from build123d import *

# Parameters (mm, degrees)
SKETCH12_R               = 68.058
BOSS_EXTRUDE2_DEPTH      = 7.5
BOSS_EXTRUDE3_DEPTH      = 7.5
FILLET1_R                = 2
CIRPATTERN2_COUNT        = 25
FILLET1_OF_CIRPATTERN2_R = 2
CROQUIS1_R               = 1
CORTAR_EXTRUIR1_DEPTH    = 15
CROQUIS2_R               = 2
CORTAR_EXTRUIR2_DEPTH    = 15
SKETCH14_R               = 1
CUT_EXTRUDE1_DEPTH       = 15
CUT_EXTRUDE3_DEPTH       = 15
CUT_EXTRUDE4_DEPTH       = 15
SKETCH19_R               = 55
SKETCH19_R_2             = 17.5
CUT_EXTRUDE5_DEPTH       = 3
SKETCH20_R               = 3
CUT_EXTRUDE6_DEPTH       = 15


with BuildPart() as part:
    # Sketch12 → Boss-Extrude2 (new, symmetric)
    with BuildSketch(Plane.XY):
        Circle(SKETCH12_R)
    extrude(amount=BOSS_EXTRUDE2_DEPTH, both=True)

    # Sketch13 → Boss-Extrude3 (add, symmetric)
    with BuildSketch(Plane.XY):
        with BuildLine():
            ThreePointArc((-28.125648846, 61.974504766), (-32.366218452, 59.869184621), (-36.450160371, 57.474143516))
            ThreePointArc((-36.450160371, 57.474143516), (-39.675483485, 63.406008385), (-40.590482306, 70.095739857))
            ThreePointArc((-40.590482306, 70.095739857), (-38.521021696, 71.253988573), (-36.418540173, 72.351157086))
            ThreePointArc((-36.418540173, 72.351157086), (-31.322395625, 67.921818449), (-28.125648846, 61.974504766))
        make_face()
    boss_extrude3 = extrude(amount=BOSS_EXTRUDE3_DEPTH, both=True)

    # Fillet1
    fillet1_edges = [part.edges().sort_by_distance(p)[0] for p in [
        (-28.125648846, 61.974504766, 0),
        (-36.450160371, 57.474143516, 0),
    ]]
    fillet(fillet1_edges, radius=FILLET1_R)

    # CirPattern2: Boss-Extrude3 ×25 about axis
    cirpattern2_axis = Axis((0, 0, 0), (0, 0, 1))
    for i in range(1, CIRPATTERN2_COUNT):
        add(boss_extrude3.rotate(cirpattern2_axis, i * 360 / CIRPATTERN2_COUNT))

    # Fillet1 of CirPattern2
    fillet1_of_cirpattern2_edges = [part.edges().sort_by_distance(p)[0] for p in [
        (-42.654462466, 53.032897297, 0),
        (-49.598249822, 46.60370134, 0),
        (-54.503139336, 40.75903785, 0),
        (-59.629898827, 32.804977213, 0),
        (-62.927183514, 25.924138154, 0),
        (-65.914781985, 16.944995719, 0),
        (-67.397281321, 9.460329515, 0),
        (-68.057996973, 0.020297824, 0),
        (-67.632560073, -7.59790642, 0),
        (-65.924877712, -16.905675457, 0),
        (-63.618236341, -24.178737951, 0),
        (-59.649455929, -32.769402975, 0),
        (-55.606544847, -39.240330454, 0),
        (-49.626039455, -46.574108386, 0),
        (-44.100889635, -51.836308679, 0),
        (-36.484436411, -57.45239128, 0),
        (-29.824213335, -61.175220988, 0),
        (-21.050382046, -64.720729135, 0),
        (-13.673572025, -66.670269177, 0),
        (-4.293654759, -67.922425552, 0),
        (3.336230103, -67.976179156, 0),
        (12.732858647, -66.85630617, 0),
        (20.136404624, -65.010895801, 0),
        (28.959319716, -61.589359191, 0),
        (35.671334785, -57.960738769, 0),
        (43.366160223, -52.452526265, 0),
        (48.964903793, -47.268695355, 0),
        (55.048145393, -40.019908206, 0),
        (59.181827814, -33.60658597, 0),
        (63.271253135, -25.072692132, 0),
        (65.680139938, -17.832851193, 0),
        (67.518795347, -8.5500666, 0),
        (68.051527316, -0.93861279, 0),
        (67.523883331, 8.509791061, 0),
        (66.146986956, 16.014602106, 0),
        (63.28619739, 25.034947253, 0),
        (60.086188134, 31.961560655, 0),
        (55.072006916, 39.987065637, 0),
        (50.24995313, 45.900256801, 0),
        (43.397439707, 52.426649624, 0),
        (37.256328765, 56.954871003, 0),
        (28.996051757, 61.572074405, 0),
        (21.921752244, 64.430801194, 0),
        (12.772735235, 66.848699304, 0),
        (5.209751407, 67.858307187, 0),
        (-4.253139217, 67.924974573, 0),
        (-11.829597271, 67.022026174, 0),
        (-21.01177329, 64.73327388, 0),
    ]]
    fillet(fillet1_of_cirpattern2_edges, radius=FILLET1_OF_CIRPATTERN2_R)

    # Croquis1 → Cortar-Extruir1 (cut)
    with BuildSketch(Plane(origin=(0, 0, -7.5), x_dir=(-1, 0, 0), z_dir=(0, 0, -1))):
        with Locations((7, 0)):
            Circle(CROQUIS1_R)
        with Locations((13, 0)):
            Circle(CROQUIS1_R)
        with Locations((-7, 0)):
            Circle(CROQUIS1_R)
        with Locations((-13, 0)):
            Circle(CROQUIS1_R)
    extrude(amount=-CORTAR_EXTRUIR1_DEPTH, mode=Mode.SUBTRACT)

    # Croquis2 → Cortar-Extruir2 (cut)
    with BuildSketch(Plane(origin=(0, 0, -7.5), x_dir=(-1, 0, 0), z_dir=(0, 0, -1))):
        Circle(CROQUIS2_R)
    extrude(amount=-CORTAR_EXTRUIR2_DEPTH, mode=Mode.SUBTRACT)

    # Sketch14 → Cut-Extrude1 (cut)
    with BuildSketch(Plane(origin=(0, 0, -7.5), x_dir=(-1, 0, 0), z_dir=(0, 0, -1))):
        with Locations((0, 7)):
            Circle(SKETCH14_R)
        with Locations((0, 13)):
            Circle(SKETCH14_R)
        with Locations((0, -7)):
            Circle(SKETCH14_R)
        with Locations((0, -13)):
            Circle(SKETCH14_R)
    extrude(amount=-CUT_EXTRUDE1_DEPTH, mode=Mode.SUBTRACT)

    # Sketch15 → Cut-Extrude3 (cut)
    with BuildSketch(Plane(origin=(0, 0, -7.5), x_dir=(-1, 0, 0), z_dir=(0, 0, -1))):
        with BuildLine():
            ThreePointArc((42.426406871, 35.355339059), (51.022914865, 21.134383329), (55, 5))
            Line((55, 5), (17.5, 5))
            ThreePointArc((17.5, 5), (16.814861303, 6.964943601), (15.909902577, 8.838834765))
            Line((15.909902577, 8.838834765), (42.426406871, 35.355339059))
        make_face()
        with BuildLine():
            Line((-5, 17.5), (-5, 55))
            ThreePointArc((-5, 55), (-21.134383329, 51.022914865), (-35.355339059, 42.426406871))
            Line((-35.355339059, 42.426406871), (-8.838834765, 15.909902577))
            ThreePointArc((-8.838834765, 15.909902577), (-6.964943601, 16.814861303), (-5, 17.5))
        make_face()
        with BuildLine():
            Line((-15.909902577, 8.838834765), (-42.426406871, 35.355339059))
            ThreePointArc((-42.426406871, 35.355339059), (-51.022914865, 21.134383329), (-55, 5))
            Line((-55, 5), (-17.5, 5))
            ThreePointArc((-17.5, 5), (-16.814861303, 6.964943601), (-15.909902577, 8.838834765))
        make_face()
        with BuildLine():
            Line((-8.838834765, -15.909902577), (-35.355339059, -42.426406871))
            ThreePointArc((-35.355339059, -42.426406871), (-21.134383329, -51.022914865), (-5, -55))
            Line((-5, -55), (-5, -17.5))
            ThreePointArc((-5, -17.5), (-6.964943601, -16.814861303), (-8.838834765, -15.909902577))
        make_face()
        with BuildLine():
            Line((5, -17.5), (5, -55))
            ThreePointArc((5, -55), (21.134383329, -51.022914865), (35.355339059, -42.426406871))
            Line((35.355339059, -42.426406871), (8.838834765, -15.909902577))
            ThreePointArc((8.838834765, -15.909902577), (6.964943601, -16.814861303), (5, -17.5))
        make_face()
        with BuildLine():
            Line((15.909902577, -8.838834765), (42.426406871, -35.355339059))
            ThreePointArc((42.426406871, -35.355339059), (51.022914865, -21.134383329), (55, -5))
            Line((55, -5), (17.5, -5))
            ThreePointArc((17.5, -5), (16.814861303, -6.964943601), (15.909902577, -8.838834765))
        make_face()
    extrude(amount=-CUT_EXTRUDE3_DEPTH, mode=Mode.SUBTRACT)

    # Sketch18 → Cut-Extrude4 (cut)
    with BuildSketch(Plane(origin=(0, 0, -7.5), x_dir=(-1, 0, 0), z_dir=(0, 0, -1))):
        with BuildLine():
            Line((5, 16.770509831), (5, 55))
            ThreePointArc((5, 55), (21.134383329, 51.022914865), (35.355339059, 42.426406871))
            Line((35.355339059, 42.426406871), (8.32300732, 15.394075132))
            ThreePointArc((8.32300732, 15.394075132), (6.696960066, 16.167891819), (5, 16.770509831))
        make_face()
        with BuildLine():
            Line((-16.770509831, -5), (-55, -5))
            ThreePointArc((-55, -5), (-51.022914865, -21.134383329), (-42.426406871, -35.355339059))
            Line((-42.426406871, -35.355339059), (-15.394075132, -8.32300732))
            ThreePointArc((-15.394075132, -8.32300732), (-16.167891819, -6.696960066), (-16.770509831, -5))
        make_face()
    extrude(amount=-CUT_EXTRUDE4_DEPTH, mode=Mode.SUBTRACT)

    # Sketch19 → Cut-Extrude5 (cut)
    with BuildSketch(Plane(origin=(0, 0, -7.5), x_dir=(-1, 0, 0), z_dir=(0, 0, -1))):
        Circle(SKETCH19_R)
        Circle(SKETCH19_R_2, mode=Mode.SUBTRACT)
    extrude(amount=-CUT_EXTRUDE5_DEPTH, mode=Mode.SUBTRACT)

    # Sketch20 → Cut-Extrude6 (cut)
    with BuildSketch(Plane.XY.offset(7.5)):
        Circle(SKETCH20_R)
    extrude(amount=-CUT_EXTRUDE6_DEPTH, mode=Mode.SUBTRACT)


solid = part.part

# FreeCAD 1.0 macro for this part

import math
import FreeCAD as App
import Part
import Sketcher
Q = App.Units.Quantity


def edges_at(feature, points):
    """Names of the edges that pass closest to the given points."""
    edges = feature.Shape.Edges
    near = lambda p: min(range(len(edges)), key=lambda i: edges[i].distToShape(Part.Vertex(*p))[0])
    return sorted({f"Edge{near(p) + 1}" for p in points})

doc = App.newDocument("Part")
body = doc.addObject("PartDesign::Body", "Body")

# Sketch on XY plane
sketch1 = doc.addObject("Sketcher::SketchObject", "Sketch")
body.addObject(sketch1)
sketch1.AttachmentSupport = (doc.XY_Plane, [""])
sketch1.MapMode = "FlatFace"
sketch1.addGeometry(Part.Circle(App.Vector(0, 0, 0), App.Vector(0, 0, 1), 68), False)
sketch1.addConstraint([
    Sketcher.Constraint("Coincident", 0, 3, -1, 1),
    Sketcher.Constraint("Diameter", 0, 136.116),
])
pad1 = doc.addObject("PartDesign::Pad", "Pad")
body.addObject(pad1)
pad1.Profile = sketch1
pad1.Length = 15
pad1.Midplane = True

# Sketch on XY plane
sketch2 = doc.addObject("Sketcher::SketchObject", "Sketch001")
body.addObject(sketch2)
sketch2.AttachmentSupport = (doc.XY_Plane, [""])
sketch2.MapMode = "FlatFace"
sketch2.addGeometry([
    Part.ArcOfCircle(Part.Circle(App.Vector(0, 0, 0), App.Vector(0, 0, 1), 68.1), math.radians(114.41), math.radians(122.38)),
    Part.ArcOfCircle(Part.Circle(App.Vector(-46, 56.2, 0), App.Vector(0, 0, 1), 18.8), math.radians(18), math.radians(59)),
    Part.ArcOfCircle(Part.Circle(App.Vector(0, 0, 0), App.Vector(0, 0, 1), 81), math.radians(116.72), math.radians(120.07)),
    Part.ArcOfCircle(Part.Circle(App.Vector(-21.9, 69.3, 0), App.Vector(0, 0, 1), 18.8), math.radians(177), math.radians(219)),
], False)
sketch2.addConstraint([
    Sketcher.Constraint("Coincident", 0, 1, 1, 1),
    Sketcher.Constraint("Coincident", 1, 2, 2, 1),
    Sketcher.Constraint("Coincident", 2, 2, 3, 1),
    Sketcher.Constraint("Coincident", 3, 2, 0, 2),
    Sketcher.Constraint("Coincident", 0, 3, -1, 1),
    Sketcher.Constraint("Coincident", 2, 3, -1, 1),
    Sketcher.Constraint("Equal", 1, 3),
    Sketcher.Constraint("Radius", 2, 80.999999),
    Sketcher.Constraint("Radius", 1, 18.75),
    Sketcher.Constraint("Radius", 0, 68.058),
    Sketcher.Constraint("DistanceY", 1, 3, 3, 2, 1.2581),
    Sketcher.Constraint("DistanceX", 1, 3, -1, 1, 45.969489),
    Sketcher.Constraint("DistanceY", -1, 1, 3, 3, 69.250252),
    Sketcher.Constraint("DistanceX", 1, 2, -1, 1, 36.41854),
])
pad2 = doc.addObject("PartDesign::Pad", "Pad001")
body.addObject(pad2)
pad2.Profile = sketch2
pad2.Length = 15
pad2.Midplane = True
doc.recompute()

fillet = doc.addObject("PartDesign::Fillet", "Fillet")
body.addObject(fillet)
fillet.Base = (pad2, edges_at(pad2, [(-28.126, 61.975, 0), (-36.45, 57.474, 0)]))
fillet.Radius = 2
doc.recompute()

polarpattern = doc.addObject("PartDesign::PolarPattern", "PolarPattern")
body.addObject(polarpattern)
polarpattern.Originals = [pad2]
polarpattern.Axis = (doc.Z_Axis, [""])
polarpattern.Angle = 360
polarpattern.Occurrences = 25
body.Tip = polarpattern
doc.recompute()

fillet2 = doc.addObject("PartDesign::Fillet", "Fillet001")
body.addObject(fillet2)
fillet2.Base = (polarpattern, edges_at(polarpattern, [
    (-42.654, 53.033, 0),
    (-49.598, 46.604, 0),
    (-54.503, 40.759, 0),
    (-59.63, 32.805, 0),
    (-62.927, 25.924, 0),
    (-65.915, 16.945, 0),
    (-67.397, 9.46, 0),
    (-68.058, 0.02, 0),
    (-67.633, -7.598, 0),
    (-65.925, -16.906, 0),
    (-63.618, -24.179, 0),
    (-59.649, -32.769, 0),
    (-55.607, -39.24, 0),
    (-49.626, -46.574, 0),
    (-44.101, -51.836, 0),
    (-36.484, -57.452, 0),
    (-29.824, -61.175, 0),
    (-21.05, -64.721, 0),
    (-13.674, -66.67, 0),
    (-4.294, -67.922, 0),
    (3.336, -67.976, 0),
    (12.733, -66.856, 0),
    (20.136, -65.011, 0),
    (28.959, -61.589, 0),
    (35.671, -57.961, 0),
    (43.366, -52.453, 0),
    (48.965, -47.269, 0),
    (55.048, -40.02, 0),
    (59.182, -33.607, 0),
    (63.271, -25.073, 0),
    (65.68, -17.833, 0),
    (67.519, -8.55, 0),
    (68.052, -0.939, 0),
    (67.524, 8.51, 0),
    (66.147, 16.015, 0),
    (63.286, 25.035, 0),
    (60.086, 31.962, 0),
    (55.072, 39.987, 0),
    (50.25, 45.9, 0),
    (43.397, 52.427, 0),
    (37.256, 56.955, 0),
    (28.996, 61.572, 0),
    (21.922, 64.431, 0),
    (12.773, 66.849, 0),
    (5.21, 67.858, 0),
    (-4.253, 67.925, 0),
    (-11.83, 67.022, 0),
    (-21.012, 64.733, 0),
]))
fillet2.Radius = 2

# Sketch on XY plane
sketch3 = doc.addObject("Sketcher::SketchObject", "Sketch002")
body.addObject(sketch3)
sketch3.AttachmentSupport = (doc.XY_Plane, [""])
sketch3.MapMode = "FlatFace"
sketch3.AttachmentOffset = App.Placement(App.Vector(0, 0, -7.5), App.Rotation())
sketch3.addGeometry([
    Part.Circle(App.Vector(-7, 0, 0), App.Vector(0, 0, 1), 1),
    Part.Circle(App.Vector(-13, 0, 0), App.Vector(0, 0, 1), 1),
    Part.Circle(App.Vector(7, 0, 0), App.Vector(0, 0, 1), 1),
    Part.Circle(App.Vector(13, 0, 0), App.Vector(0, 0, 1), 1),
], False)
sketch3.addConstraint([
    Sketcher.Constraint("Equal", 0, 1),
    Sketcher.Constraint("Equal", 1, 2),
    Sketcher.Constraint("Equal", 2, 3),
    Sketcher.Constraint("Symmetric", 0, 3, 2, 3, -1, 1),
    Sketcher.Constraint("Symmetric", 1, 3, 3, 3, -1, 1),
    Sketcher.Constraint("PointOnObject", 0, 3, -1),
    Sketcher.Constraint("PointOnObject", 1, 3, -1),
    Sketcher.Constraint("Diameter", 0, 2.0),
    Sketcher.Constraint("DistanceX", 0, 3, -1, 1, 7.0),
    Sketcher.Constraint("DistanceX", 1, 3, -1, 1, 13.0),
])
pocket1 = doc.addObject("PartDesign::Pocket", "Pocket")
body.addObject(pocket1)
pocket1.Profile = sketch3
pocket1.Length = 15
pocket1.Reversed = True

# Sketch on XY plane
sketch4 = doc.addObject("Sketcher::SketchObject", "Sketch003")
body.addObject(sketch4)
sketch4.AttachmentSupport = (doc.XY_Plane, [""])
sketch4.MapMode = "FlatFace"
sketch4.AttachmentOffset = App.Placement(App.Vector(0, 0, -7.5), App.Rotation())
sketch4.addGeometry(Part.Circle(App.Vector(0, 0, 0), App.Vector(0, 0, 1), 2), False)
sketch4.addConstraint([
    Sketcher.Constraint("Coincident", 0, 3, -1, 1),
    Sketcher.Constraint("Diameter", 0, 4.0),
])
pocket2 = doc.addObject("PartDesign::Pocket", "Pocket001")
body.addObject(pocket2)
pocket2.Profile = sketch4
pocket2.Length = 15
pocket2.Reversed = True

# Sketch on XY plane
sketch5 = doc.addObject("Sketcher::SketchObject", "Sketch004")
body.addObject(sketch5)
sketch5.AttachmentSupport = (doc.XY_Plane, [""])
sketch5.MapMode = "FlatFace"
sketch5.AttachmentOffset = App.Placement(App.Vector(0, 0, -7.5), App.Rotation())
sketch5.addGeometry([
    Part.Circle(App.Vector(0, 7, 0), App.Vector(0, 0, 1), 1),
    Part.Circle(App.Vector(0, 13, 0), App.Vector(0, 0, 1), 1),
    Part.Circle(App.Vector(0, -7, 0), App.Vector(0, 0, 1), 1),
    Part.Circle(App.Vector(0, -13, 0), App.Vector(0, 0, 1), 1),
], False)
sketch5.addConstraint([
    Sketcher.Constraint("Equal", 0, 1),
    Sketcher.Constraint("Equal", 1, 2),
    Sketcher.Constraint("Equal", 2, 3),
    Sketcher.Constraint("Symmetric", 0, 3, 2, 3, -1, 1),
    Sketcher.Constraint("Symmetric", 1, 3, 3, 3, -1, 1),
    Sketcher.Constraint("PointOnObject", 0, 3, -2),
    Sketcher.Constraint("PointOnObject", 1, 3, -2),
    Sketcher.Constraint("Diameter", 0, 2.0),
    Sketcher.Constraint("DistanceY", -1, 1, 0, 3, 7.0),
    Sketcher.Constraint("DistanceY", -1, 1, 1, 3, 13.0),
])
pocket3 = doc.addObject("PartDesign::Pocket", "Pocket002")
body.addObject(pocket3)
pocket3.Profile = sketch5
pocket3.Length = 15
pocket3.Reversed = True

# Sketch on XY plane
sketch6 = doc.addObject("Sketcher::SketchObject", "Sketch005")
body.addObject(sketch6)
sketch6.AttachmentSupport = (doc.XY_Plane, [""])
sketch6.MapMode = "FlatFace"
sketch6.AttachmentOffset = App.Placement(App.Vector(0, 0, -7.5), App.Rotation())
sketch6.addGeometry([
    Part.ArcOfCircle(Part.Circle(App.Vector(0, 0, 0), App.Vector(0, 0, 1), 55.2), math.radians(140), math.radians(175)),  # 0
    Part.LineSegment(App.Vector(-42.4, 35.4, 0), App.Vector(-15.9, 8.8, 0)),  # 1
    Part.ArcOfCircle(Part.Circle(App.Vector(0, 0, 0), App.Vector(0, 0, 1), 18.2), math.radians(150.95), math.radians(164.05)),  # 2
    Part.LineSegment(App.Vector(-17.5, 5, 0), App.Vector(-55, 5, 0)),  # 3
    Part.LineSegment(App.Vector(5, 17.5, 0), App.Vector(5, 55, 0)),  # 4
    Part.ArcOfCircle(Part.Circle(App.Vector(0, 0, 0), App.Vector(0, 0, 1), 55.2), math.radians(50), math.radians(85)),  # 5
    Part.LineSegment(App.Vector(35.4, 42.4, 0), App.Vector(8.8, 15.9, 0)),  # 6
    Part.ArcOfCircle(Part.Circle(App.Vector(0, 0, 0), App.Vector(0, 0, 1), 18.2), math.radians(60.95), math.radians(74.05)),  # 7
    Part.LineSegment(App.Vector(15.9, 8.8, 0), App.Vector(42.4, 35.4, 0)),  # 8
    Part.ArcOfCircle(Part.Circle(App.Vector(0, 0, 0), App.Vector(0, 0, 1), 55.2), math.radians(5), math.radians(40)),  # 9
    Part.LineSegment(App.Vector(55, 5, 0), App.Vector(17.5, 5, 0)),  # 10
    Part.ArcOfCircle(Part.Circle(App.Vector(0, 0, 0), App.Vector(0, 0, 1), 18.2), math.radians(15.95), math.radians(29.05)),  # 11
    Part.LineSegment(App.Vector(8.8, -15.9, 0), App.Vector(35.4, -42.4, 0)),  # 12
    Part.ArcOfCircle(Part.Circle(App.Vector(0, 0, 0), App.Vector(0, 0, 1), 55.2), math.radians(-85), math.radians(-50)),  # 13
    Part.LineSegment(App.Vector(5, -55, 0), App.Vector(5, -17.5, 0)),  # 14
    Part.ArcOfCircle(Part.Circle(App.Vector(0, 0, 0), App.Vector(0, 0, 1), 18.2), math.radians(-74.05), math.radians(-60.95)),  # 15
    Part.LineSegment(App.Vector(-5, -17.5, 0), App.Vector(-5, -55, 0)),  # 16
    Part.ArcOfCircle(Part.Circle(App.Vector(0, 0, 0), App.Vector(0, 0, 1), 55.2), math.radians(-130), math.radians(-95)),  # 17
    Part.LineSegment(App.Vector(-35.4, -42.4, 0), App.Vector(-8.8, -15.9, 0)),  # 18
    Part.ArcOfCircle(Part.Circle(App.Vector(0, 0, 0), App.Vector(0, 0, 1), 18.2), math.radians(-119.05), math.radians(-105.95)),  # 19
    Part.LineSegment(App.Vector(-15.9, -8.8, 0), App.Vector(-42.4, -35.4, 0)),  # 20
    Part.ArcOfCircle(Part.Circle(App.Vector(0, 0, 0), App.Vector(0, 0, 1), 55.2), math.radians(-175), math.radians(-140)),  # 21
    Part.LineSegment(App.Vector(-55, -5, 0), App.Vector(-17.5, -5, 0)),  # 22
    Part.ArcOfCircle(Part.Circle(App.Vector(0, 0, 0), App.Vector(0, 0, 1), 18.2), math.radians(-164.05), math.radians(-150.95)),  # 23
], False)
sketch6.addConstraint([
    Sketcher.Constraint("Coincident", 0, 1, 1, 1),
    Sketcher.Constraint("Coincident", 1, 2, 2, 1),
    Sketcher.Constraint("Coincident", 2, 2, 3, 1),
    Sketcher.Constraint("Coincident", 3, 2, 0, 2),
    Sketcher.Constraint("Coincident", 4, 2, 5, 2),
    Sketcher.Constraint("Coincident", 5, 1, 6, 1),
    Sketcher.Constraint("Coincident", 6, 2, 7, 1),
    Sketcher.Constraint("Coincident", 7, 2, 4, 1),
    Sketcher.Constraint("Coincident", 8, 2, 9, 2),
    Sketcher.Constraint("Coincident", 9, 1, 10, 1),
    Sketcher.Constraint("Coincident", 10, 2, 11, 1),
    Sketcher.Constraint("Coincident", 11, 2, 8, 1),
    Sketcher.Constraint("Coincident", 12, 2, 13, 2),
    Sketcher.Constraint("Coincident", 13, 1, 14, 1),
    Sketcher.Constraint("Coincident", 14, 2, 15, 1),
    Sketcher.Constraint("Coincident", 15, 2, 12, 1),
    Sketcher.Constraint("Coincident", 16, 2, 17, 2),
    Sketcher.Constraint("Coincident", 17, 1, 18, 1),
    Sketcher.Constraint("Coincident", 18, 2, 19, 1),
    Sketcher.Constraint("Coincident", 19, 2, 16, 1),
    Sketcher.Constraint("Coincident", 20, 2, 21, 2),
    Sketcher.Constraint("Coincident", 21, 1, 22, 1),
    Sketcher.Constraint("Coincident", 22, 2, 23, 1),
    Sketcher.Constraint("Coincident", 23, 2, 20, 1),
    Sketcher.Constraint("Horizontal", 3),
    Sketcher.Constraint("Vertical", 4),
    Sketcher.Constraint("Horizontal", 10),
    Sketcher.Constraint("Vertical", 14),
    Sketcher.Constraint("Vertical", 16),
    Sketcher.Constraint("Horizontal", 22),
    Sketcher.Constraint("Coincident", 0, 3, -1, 1),
    Sketcher.Constraint("Coincident", 2, 3, -1, 1),
    Sketcher.Constraint("Coincident", 5, 3, -1, 1),
    Sketcher.Constraint("Coincident", 7, 3, -1, 1),
    Sketcher.Constraint("Coincident", 9, 3, -1, 1),
    Sketcher.Constraint("Coincident", 11, 3, -1, 1),
    Sketcher.Constraint("Coincident", 13, 3, -1, 1),
    Sketcher.Constraint("Coincident", 15, 3, -1, 1),
    Sketcher.Constraint("Coincident", 17, 3, -1, 1),
    Sketcher.Constraint("Coincident", 19, 3, -1, 1),
    Sketcher.Constraint("Coincident", 21, 3, -1, 1),
    Sketcher.Constraint("Coincident", 23, 3, -1, 1),
    Sketcher.Constraint("Equal", 0, 5),
    Sketcher.Constraint("Equal", 2, 7),
    Sketcher.Constraint("Equal", 5, 9),
    Sketcher.Constraint("Equal", 7, 11),
    Sketcher.Constraint("Equal", 9, 13),
    Sketcher.Constraint("Equal", 11, 15),
    Sketcher.Constraint("Equal", 13, 17),
    Sketcher.Constraint("Equal", 15, 19),
    Sketcher.Constraint("Equal", 17, 21),
    Sketcher.Constraint("Equal", 19, 23),
    Sketcher.Constraint("Perpendicular", 1, 6),
    Sketcher.Constraint("Parallel", 6, 8),
    Sketcher.Constraint("Perpendicular", 8, 12),
    Sketcher.Constraint("Perpendicular", 12, 18),
    Sketcher.Constraint("Parallel", 18, 20),
    Sketcher.Constraint("Horizontal", 0, 1, 8, 2),
    Sketcher.Constraint("Horizontal", 3, 2, 9, 1),
    Sketcher.Constraint("Horizontal", 1, 2, 11, 2),
    Sketcher.Constraint("Horizontal", 13, 1, 16, 2),
    Sketcher.Constraint("Horizontal", 12, 2, 17, 1),
    Sketcher.Constraint("Vertical", 5, 1, 12, 2),
    Sketcher.Constraint("Vertical", 7, 2, 13, 1),
    Sketcher.Constraint("Vertical", 0, 1, 20, 2),
    Sketcher.Constraint("Vertical", 3, 2, 21, 1),
    Sketcher.Constraint("Equal", 22, 4),
    Sketcher.Constraint("Equal", 1, 6),
    Sketcher.Constraint("DistanceX", 3, 2, 3, 1, 37.5),
    Sketcher.Constraint("DistanceY", -1, 1, 2, 2, 5.0),
    Sketcher.Constraint("DistanceX", 3, 2, -1, 1, 55.0),
    Sketcher.Constraint("Distance", 1, 37.5),
])
pocket4 = doc.addObject("PartDesign::Pocket", "Pocket003")
body.addObject(pocket4)
pocket4.Profile = sketch6
pocket4.Length = 15
pocket4.Reversed = True

# Sketch on XY plane
sketch7 = doc.addObject("Sketcher::SketchObject", "Sketch006")
body.addObject(sketch7)
sketch7.AttachmentSupport = (doc.XY_Plane, [""])
sketch7.MapMode = "FlatFace"
sketch7.AttachmentOffset = App.Placement(App.Vector(0, 0, -7.5), App.Rotation())
sketch7.addGeometry([
    Part.LineSegment(App.Vector(-5, 55, 0), App.Vector(-5, 16.8, 0)),  # 0
    Part.ArcOfCircle(Part.Circle(App.Vector(0, 0, 0), App.Vector(0, 0, 1), 17.5), math.radians(106.6), math.radians(118.4)),  # 1
    Part.LineSegment(App.Vector(-8.3, 15.4, 0), App.Vector(-35.4, 42.4, 0)),  # 2
    Part.ArcOfCircle(Part.Circle(App.Vector(0, 0, 0), App.Vector(0, 0, 1), 55.2), math.radians(95), math.radians(130)),  # 3
    Part.LineSegment(App.Vector(16.8, -5, 0), App.Vector(55, -5, 0)),  # 4
    Part.ArcOfCircle(Part.Circle(App.Vector(0, 0, 0), App.Vector(0, 0, 1), 55.2), math.radians(-40), math.radians(-5)),  # 5
    Part.LineSegment(App.Vector(42.4, -35.4, 0), App.Vector(15.4, -8.3, 0)),  # 6
    Part.ArcOfCircle(Part.Circle(App.Vector(0, 0, 0), App.Vector(0, 0, 1), 17.5), math.radians(-28.4), math.radians(-16.6)),  # 7
], False)
sketch7.addConstraint([
    Sketcher.Constraint("Coincident", 0, 2, 1, 1),
    Sketcher.Constraint("Coincident", 1, 2, 2, 1),
    Sketcher.Constraint("Coincident", 2, 2, 3, 2),
    Sketcher.Constraint("Coincident", 3, 1, 0, 1),
    Sketcher.Constraint("Coincident", 4, 2, 5, 2),
    Sketcher.Constraint("Coincident", 5, 1, 6, 1),
    Sketcher.Constraint("Coincident", 6, 2, 7, 1),
    Sketcher.Constraint("Coincident", 7, 2, 4, 1),
    Sketcher.Constraint("Vertical", 0),
    Sketcher.Constraint("Horizontal", 4),
    Sketcher.Constraint("Coincident", 1, 3, -1, 1),
    Sketcher.Constraint("Coincident", 3, 3, -1, 1),
    Sketcher.Constraint("Coincident", 5, 3, -1, 1),
    Sketcher.Constraint("Coincident", 7, 3, -1, 1),
    Sketcher.Constraint("Equal", 3, 5),
    Sketcher.Constraint("Equal", 1, 7),
    Sketcher.Constraint("Parallel", 2, 6),
    Sketcher.Constraint("Equal", 4, 0),
    Sketcher.Constraint("Equal", 2, 6),
    Sketcher.Constraint("Radius", 1, 17.5),
    Sketcher.Constraint("Angle", 2, Q("135 deg")),
    Sketcher.Constraint("DistanceX", 0, 2, -1, 1, 5.0),
    Sketcher.Constraint("DistanceY", -1, 1, 3, 1, 55.0),
    Sketcher.Constraint("Distance", 2, 38.22949),
])
pocket5 = doc.addObject("PartDesign::Pocket", "Pocket004")
body.addObject(pocket5)
pocket5.Profile = sketch7
pocket5.Length = 15
pocket5.Reversed = True

# Sketch on XY plane
sketch8 = doc.addObject("Sketcher::SketchObject", "Sketch007")
body.addObject(sketch8)
sketch8.AttachmentSupport = (doc.XY_Plane, [""])
sketch8.MapMode = "FlatFace"
sketch8.AttachmentOffset = App.Placement(App.Vector(0, 0, -7.5), App.Rotation())
sketch8.addGeometry([
    Part.Circle(App.Vector(0, 0, 0), App.Vector(0, 0, 1), 55),
    Part.Circle(App.Vector(0, 0, 0), App.Vector(0, 0, 1), 18),
], False)
sketch8.addConstraint([
    Sketcher.Constraint("Coincident", 0, 3, -1, 1),
    Sketcher.Constraint("Coincident", 1, 3, -1, 1),
    Sketcher.Constraint("Diameter", 0, 110.0),
    Sketcher.Constraint("Diameter", 1, 35.0),
])
pocket6 = doc.addObject("PartDesign::Pocket", "Pocket005")
body.addObject(pocket6)
pocket6.Profile = sketch8
pocket6.Length = 3
pocket6.Reversed = True

# Sketch on XY plane
sketch9 = doc.addObject("Sketcher::SketchObject", "Sketch008")
body.addObject(sketch9)
sketch9.AttachmentSupport = (doc.XY_Plane, [""])
sketch9.MapMode = "FlatFace"
sketch9.AttachmentOffset = App.Placement(App.Vector(0, 0, 7.5), App.Rotation())
sketch9.addGeometry(Part.Circle(App.Vector(0, 0, 0), App.Vector(0, 0, 1), 3), False)
sketch9.addConstraint([
    Sketcher.Constraint("Coincident", 0, 3, -1, 1),
    Sketcher.Constraint("Diameter", 0, 6.0),
])
pocket7 = doc.addObject("PartDesign::Pocket", "Pocket006")
body.addObject(pocket7)
pocket7.Profile = sketch9
pocket7.Length = 15

doc.recompute()
